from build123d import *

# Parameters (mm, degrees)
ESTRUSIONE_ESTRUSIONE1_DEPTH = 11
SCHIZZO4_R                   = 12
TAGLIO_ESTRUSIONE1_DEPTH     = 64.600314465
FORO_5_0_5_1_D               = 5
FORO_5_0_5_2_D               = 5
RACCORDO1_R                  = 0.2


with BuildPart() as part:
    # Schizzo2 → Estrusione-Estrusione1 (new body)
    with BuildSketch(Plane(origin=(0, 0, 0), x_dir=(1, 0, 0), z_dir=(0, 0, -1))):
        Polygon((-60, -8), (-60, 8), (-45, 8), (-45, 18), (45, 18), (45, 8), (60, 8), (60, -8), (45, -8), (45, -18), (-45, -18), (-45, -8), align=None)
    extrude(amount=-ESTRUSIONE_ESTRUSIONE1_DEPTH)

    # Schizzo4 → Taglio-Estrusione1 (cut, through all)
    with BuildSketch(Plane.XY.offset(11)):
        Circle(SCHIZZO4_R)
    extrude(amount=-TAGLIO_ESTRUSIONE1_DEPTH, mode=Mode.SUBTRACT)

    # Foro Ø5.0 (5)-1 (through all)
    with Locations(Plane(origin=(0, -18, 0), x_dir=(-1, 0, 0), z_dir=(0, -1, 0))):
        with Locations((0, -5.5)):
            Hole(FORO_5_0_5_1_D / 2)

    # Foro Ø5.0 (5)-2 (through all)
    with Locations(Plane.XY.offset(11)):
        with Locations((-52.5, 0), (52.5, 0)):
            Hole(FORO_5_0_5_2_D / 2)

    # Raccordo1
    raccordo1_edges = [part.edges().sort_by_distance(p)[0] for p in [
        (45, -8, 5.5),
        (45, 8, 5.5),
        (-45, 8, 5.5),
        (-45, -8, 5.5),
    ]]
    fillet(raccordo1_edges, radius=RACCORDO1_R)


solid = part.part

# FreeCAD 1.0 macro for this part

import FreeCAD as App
import Part
import Sketcher

V = App.Vector
Q = App.Units.Quantity


def edges_at(feature, points):
    """Names of the edges that pass closest to the given points."""
    edges = feature.Shape.Edges
    near = lambda p: min(range(len(edges)), key=lambda i: edges[i].distToShape(Part.Vertex(*p))[0])
    return sorted({f"Edge{near(p) + 1}" for p in points})

doc = App.newDocument("Part")
body = doc.addObject("PartDesign::Body", "Body")

sketch1 = doc.addObject("Sketcher::SketchObject", "Sketch")
body.addObject(sketch1)
sketch1.AttachmentSupport = (doc.XY_Plane, [""])
sketch1.MapMode = "FlatFace"
sketch1.addGeometry(Part.LineSegment(V(-60, -8, 0), V(-60, 8, 0)), False)
sketch1.addGeometry(Part.LineSegment(V(-60, 8, 0), V(-45, 8, 0)), False)
sketch1.addGeometry(Part.LineSegment(V(-45, 8, 0), V(-45, 18, 0)), False)
sketch1.addGeometry(Part.LineSegment(V(-45, 18, 0), V(45, 18, 0)), False)
sketch1.addGeometry(Part.LineSegment(V(45, 18, 0), V(45, 8, 0)), False)
sketch1.addGeometry(Part.LineSegment(V(45, 8, 0), V(60, 8, 0)), False)
sketch1.addGeometry(Part.LineSegment(V(60, 8, 0), V(60, -8, 0)), False)
sketch1.addGeometry(Part.LineSegment(V(60, -8, 0), V(45, -8, 0)), False)
sketch1.addGeometry(Part.LineSegment(V(45, -8, 0), V(45, -18, 0)), False)
sketch1.addGeometry(Part.LineSegment(V(45, -18, 0), V(-45, -18, 0)), False)
sketch1.addGeometry(Part.LineSegment(V(-45, -18, 0), V(-45, -8, 0)), False)
sketch1.addGeometry(Part.LineSegment(V(-45, -8, 0), V(-60, -8, 0)), False)
sketch1.addConstraint(Sketcher.Constraint("Coincident", 0, 2, 1, 1))
sketch1.addConstraint(Sketcher.Constraint("Coincident", 1, 2, 2, 1))
sketch1.addConstraint(Sketcher.Constraint("Coincident", 2, 2, 3, 1))
sketch1.addConstraint(Sketcher.Constraint("Coincident", 3, 2, 4, 1))
sketch1.addConstraint(Sketcher.Constraint("Coincident", 4, 2, 5, 1))
sketch1.addConstraint(Sketcher.Constraint("Coincident", 5, 2, 6, 1))
sketch1.addConstraint(Sketcher.Constraint("Coincident", 6, 2, 7, 1))
sketch1.addConstraint(Sketcher.Constraint("Coincident", 7, 2, 8, 1))
sketch1.addConstraint(Sketcher.Constraint("Coincident", 8, 2, 9, 1))
sketch1.addConstraint(Sketcher.Constraint("Coincident", 9, 2, 10, 1))
sketch1.addConstraint(Sketcher.Constraint("Coincident", 10, 2, 11, 1))
sketch1.addConstraint(Sketcher.Constraint("Coincident", 11, 2, 0, 1))
sketch1.addConstraint(Sketcher.Constraint("Vertical", 0))
sketch1.addConstraint(Sketcher.Constraint("Horizontal", 1))
sketch1.addConstraint(Sketcher.Constraint("Vertical", 2))
sketch1.addConstraint(Sketcher.Constraint("Horizontal", 3))
sketch1.addConstraint(Sketcher.Constraint("Vertical", 4))
sketch1.addConstraint(Sketcher.Constraint("Horizontal", 5))
sketch1.addConstraint(Sketcher.Constraint("Vertical", 6))
sketch1.addConstraint(Sketcher.Constraint("Horizontal", 7))
sketch1.addConstraint(Sketcher.Constraint("Vertical", 8))
sketch1.addConstraint(Sketcher.Constraint("Horizontal", 9))
sketch1.addConstraint(Sketcher.Constraint("Vertical", 10))
sketch1.addConstraint(Sketcher.Constraint("Horizontal", 11))
sketch1.addConstraint(Sketcher.Constraint("Symmetric", 0, 2, 6, 2, -1, 1))
sketch1.addConstraint(Sketcher.Constraint("Symmetric", 2, 2, 8, 2, -1, 1))
sketch1.addConstraint(Sketcher.Constraint("Symmetric", 4, 2, 10, 2, -1, 1))
sketch1.addConstraint(Sketcher.Constraint("Symmetric", 1, 2, 4, 2, -2))
sketch1.addConstraint(Sketcher.Constraint("DistanceX", 1, 1, 1, 2, Q("15 mm")))
sketch1.addConstraint(Sketcher.Constraint("DistanceX", 3, 1, 3, 2, Q("90 mm")))
sketch1.addConstraint(Sketcher.Constraint("DistanceY", 0, 1, 0, 2, Q("16 mm")))
sketch1.addConstraint(Sketcher.Constraint("DistanceY", 2, 1, 2, 2, Q("10 mm")))
pad1 = doc.addObject("PartDesign::Pad", "Pad")
body.addObject(pad1)
pad1.Profile = sketch1
pad1.Length = 11

sketch2 = doc.addObject("Sketcher::SketchObject", "Sketch001")
body.addObject(sketch2)
sketch2.AttachmentSupport = (doc.XY_Plane, [""])
sketch2.MapMode = "FlatFace"
sketch2.AttachmentOffset = App.Placement(V(0, 0, 11), App.Rotation())
sketch2.addGeometry(Part.Circle(V(0, 0, 0), V(0, 0, 1), 12), False)
sketch2.addConstraint(Sketcher.Constraint("Coincident", 0, 3, -1, 1))
sketch2.addConstraint(Sketcher.Constraint("Diameter", 0, Q("24 mm")))
pocket1 = doc.addObject("PartDesign::Pocket", "Pocket")
body.addObject(pocket1)
pocket1.Profile = sketch2
pocket1.Type = "ThroughAll"

sketch3 = doc.addObject("Sketcher::SketchObject", "Sketch002")
body.addObject(sketch3)
sketch3.AttachmentSupport = (doc.XZ_Plane, [""])
sketch3.MapMode = "FlatFace"
sketch3.AttachmentOffset = App.Placement(V(0, 0, 18), App.Rotation())
sketch3.addGeometry(Part.Circle(V(0, 5.5, 0), V(0, 0, 1), 2.5), False)
sketch3.addConstraint(Sketcher.Constraint("PointOnObject", 0, 3, -2))
sketch3.addConstraint(Sketcher.Constraint("Diameter", 0, Q("5 mm")))
sketch3.addConstraint(Sketcher.Constraint("DistanceY", -1, 1, 0, 3, Q("5.5 mm")))
doc.recompute()
hole = doc.addObject("PartDesign::Hole", "Hole")
body.addObject(hole)
hole.Profile = sketch3
hole.ThreadType = "None"
hole.Diameter = 5
hole.DepthType = "ThroughAll"

sketch4 = doc.addObject("Sketcher::SketchObject", "Sketch003")
body.addObject(sketch4)
sketch4.AttachmentSupport = (doc.XY_Plane, [""])
sketch4.MapMode = "FlatFace"
sketch4.AttachmentOffset = App.Placement(V(0, 0, 11), App.Rotation())
sketch4.addGeometry(Part.Circle(V(-52.5, 0, 0), V(0, 0, 1), 2.5), False)
sketch4.addGeometry(Part.Circle(V(52.5, 0, 0), V(0, 0, 1), 2.5), False)
sketch4.addConstraint(Sketcher.Constraint("Equal", 0, 1))
sketch4.addConstraint(Sketcher.Constraint("Symmetric", 0, 3, 1, 3, -1, 1))
sketch4.addConstraint(Sketcher.Constraint("PointOnObject", 0, 3, -1))
sketch4.addConstraint(Sketcher.Constraint("Diameter", 0, Q("5 mm")))
sketch4.addConstraint(Sketcher.Constraint("DistanceX", 0, 3, 1, 3, Q("105 mm")))
doc.recompute()
hole2 = doc.addObject("PartDesign::Hole", "Hole001")
body.addObject(hole2)
hole2.Profile = sketch4
hole2.ThreadType = "None"
hole2.Diameter = 5
hole2.DepthType = "ThroughAll"
doc.recompute()

fillet = doc.addObject("PartDesign::Fillet", "Fillet")
body.addObject(fillet)
fillet.Base = (hole2, edges_at(hole2, [
    (45, -8, 5.5),
    (45, 8, 5.5),
    (-45, 8, 5.5),
    (-45, -8, 5.5),
]))
fillet.Radius = 0.2

doc.recompute()
